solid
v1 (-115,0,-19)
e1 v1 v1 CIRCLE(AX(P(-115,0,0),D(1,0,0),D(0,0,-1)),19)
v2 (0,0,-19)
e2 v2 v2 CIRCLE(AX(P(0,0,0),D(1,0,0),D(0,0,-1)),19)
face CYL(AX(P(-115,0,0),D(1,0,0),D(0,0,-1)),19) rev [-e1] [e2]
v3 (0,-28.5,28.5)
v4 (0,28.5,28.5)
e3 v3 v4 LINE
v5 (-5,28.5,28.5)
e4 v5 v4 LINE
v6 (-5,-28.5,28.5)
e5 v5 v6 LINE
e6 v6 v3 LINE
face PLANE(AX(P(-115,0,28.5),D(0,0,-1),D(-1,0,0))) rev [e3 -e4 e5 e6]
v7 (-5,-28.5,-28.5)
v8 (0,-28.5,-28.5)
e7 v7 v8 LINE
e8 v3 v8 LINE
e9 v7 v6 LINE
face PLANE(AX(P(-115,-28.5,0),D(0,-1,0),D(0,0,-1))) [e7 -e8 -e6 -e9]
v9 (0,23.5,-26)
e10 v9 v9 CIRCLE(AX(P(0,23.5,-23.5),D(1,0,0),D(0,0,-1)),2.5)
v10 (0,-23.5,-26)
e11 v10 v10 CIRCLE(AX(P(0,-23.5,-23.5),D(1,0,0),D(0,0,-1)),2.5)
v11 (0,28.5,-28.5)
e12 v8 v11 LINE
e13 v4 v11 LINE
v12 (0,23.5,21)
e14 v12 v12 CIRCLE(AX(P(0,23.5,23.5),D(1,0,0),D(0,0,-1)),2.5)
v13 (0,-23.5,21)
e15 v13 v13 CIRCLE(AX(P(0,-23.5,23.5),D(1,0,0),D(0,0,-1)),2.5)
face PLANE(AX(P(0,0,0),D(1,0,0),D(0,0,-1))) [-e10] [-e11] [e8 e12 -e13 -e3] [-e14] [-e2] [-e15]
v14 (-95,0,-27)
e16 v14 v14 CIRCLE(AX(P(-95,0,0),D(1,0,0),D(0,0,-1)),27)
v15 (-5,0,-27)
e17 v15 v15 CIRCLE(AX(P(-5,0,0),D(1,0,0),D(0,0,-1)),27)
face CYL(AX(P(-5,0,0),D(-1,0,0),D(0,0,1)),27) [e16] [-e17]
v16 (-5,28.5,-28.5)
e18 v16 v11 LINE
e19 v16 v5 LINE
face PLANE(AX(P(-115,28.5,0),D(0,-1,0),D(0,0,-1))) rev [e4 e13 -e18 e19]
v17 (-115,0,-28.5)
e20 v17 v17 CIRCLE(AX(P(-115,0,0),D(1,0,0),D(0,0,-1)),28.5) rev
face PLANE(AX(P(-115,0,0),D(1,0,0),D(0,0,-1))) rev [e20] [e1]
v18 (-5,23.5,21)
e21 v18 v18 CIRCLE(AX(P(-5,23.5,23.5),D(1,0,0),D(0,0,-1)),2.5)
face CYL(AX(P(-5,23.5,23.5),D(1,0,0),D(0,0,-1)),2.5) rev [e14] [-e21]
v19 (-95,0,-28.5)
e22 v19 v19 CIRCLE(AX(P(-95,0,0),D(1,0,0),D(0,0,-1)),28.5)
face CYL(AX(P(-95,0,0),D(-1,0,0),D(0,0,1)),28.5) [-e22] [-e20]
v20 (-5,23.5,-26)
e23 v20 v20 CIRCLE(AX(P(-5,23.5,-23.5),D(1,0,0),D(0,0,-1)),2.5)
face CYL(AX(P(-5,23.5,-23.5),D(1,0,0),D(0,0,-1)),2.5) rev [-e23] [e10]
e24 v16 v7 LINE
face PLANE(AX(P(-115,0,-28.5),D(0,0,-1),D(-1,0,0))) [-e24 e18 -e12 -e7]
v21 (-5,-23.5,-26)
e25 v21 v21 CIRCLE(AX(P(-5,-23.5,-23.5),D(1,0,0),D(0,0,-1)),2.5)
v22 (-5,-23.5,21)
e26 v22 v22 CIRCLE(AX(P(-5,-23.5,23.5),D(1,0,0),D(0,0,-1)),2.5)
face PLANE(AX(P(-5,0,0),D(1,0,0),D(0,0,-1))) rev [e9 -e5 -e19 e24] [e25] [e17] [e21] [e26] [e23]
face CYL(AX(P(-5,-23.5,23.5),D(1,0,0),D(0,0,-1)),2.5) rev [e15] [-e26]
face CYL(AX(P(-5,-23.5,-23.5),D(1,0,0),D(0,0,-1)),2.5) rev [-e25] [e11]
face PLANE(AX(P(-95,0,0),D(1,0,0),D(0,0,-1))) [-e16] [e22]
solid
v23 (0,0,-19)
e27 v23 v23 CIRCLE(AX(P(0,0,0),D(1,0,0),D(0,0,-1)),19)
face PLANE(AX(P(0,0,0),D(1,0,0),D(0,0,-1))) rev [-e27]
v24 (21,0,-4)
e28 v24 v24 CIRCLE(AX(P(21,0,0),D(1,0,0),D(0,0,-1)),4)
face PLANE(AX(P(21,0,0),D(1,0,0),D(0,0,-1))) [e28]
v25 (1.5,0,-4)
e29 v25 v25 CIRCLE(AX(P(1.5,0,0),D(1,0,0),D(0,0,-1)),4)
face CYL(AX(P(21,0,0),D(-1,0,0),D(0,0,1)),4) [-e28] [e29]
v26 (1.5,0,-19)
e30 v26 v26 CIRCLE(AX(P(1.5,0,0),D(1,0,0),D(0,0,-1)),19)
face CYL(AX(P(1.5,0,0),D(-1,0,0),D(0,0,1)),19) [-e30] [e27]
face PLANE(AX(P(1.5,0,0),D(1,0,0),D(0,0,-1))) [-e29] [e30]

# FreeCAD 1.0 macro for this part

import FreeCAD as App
import Part
import Sketcher
from FreeCAD import Vector


def add_polygon(sketch, points):
    """Adds a closed chain of lines whose ends are joined by coincident constraints."""
    first, n = sketch.GeometryCount, len(points)
    for a, b in zip(points, points[1:] + points[:1]):
        sketch.addGeometry(Part.LineSegment(App.Vector(*a, 0), App.Vector(*b, 0)), False)
    for i in range(n):
        sketch.addConstraint(Sketcher.Constraint("Coincident", first + i, 2, first + (i + 1) % n, 1))

doc = App.newDocument("Part")
body = doc.addObject("PartDesign::Body", "Body")

sketch1 = body.newObject("Sketcher::SketchObject", "Sketch")
sketch1.AttachmentSupport = (doc.getObject("YZ_Plane"), [""])
sketch1.MapMode = "FlatFace"
sketch1.addGeometry(Part.Circle(Vector(0, 0, 0), Vector(0, 0, 1), 4), False)
sketch1.addConstraint([
    Sketcher.Constraint("Coincident", 0, 3, -1, 1),
    Sketcher.Constraint("Diameter", 0, 8.0),
])
pad1 = body.newObject("PartDesign::Pad", "Pad")
pad1.Profile = sketch1
pad1.Length = 21

sketch2 = body.newObject("Sketcher::SketchObject", "Sketch001")
sketch2.AttachmentSupport = (doc.getObject("YZ_Plane"), [""])
sketch2.MapMode = "FlatFace"
sketch2.addGeometry([
    Part.Circle(Vector(0, 0, 0), Vector(0, 0, 1), 19),
    Part.Circle(Vector(0, 0, 0), Vector(0, 0, 1), 4),
], False)
sketch2.addConstraint([
    Sketcher.Constraint("Coincident", 0, 3, -1, 1),
    Sketcher.Constraint("Coincident", 1, 3, -1, 1),
    Sketcher.Constraint("Diameter", 0, 38.0),
    Sketcher.Constraint("Diameter", 1, 8.0),
])
pad2 = body.newObject("PartDesign::Pad", "Pad001")
pad2.Profile = sketch2
pad2.Length = 1.5
body2 = doc.addObject("PartDesign::Body", "Body001")

sketch3 = body2.newObject("Sketcher::SketchObject", "Sketch002")
sketch3.AttachmentSupport = (doc.getObject("YZ_Plane001"), [""])
sketch3.MapMode = "FlatFace"
add_polygon(sketch3, [(28, 28), (-28, 28), (-28, -28), (28, -28)])
sketch3.addGeometry(Part.Circle(Vector(0, 0, 0), Vector(0, 0, 1), 19), False)
sketch3.addConstraint([
    Sketcher.Constraint("Horizontal", 0),
    Sketcher.Constraint("Vertical", 1),
    Sketcher.Constraint("Horizontal", 2),
    Sketcher.Constraint("Vertical", 3),
    Sketcher.Constraint("Coincident", 4, 3, -1, 1),
    Sketcher.Constraint("Symmetric", 0, 2, 2, 2, -1, 1),
    Sketcher.Constraint("Equal", 2, 1),
    Sketcher.Constraint("Diameter", 4, 38.0),
    Sketcher.Constraint("DistanceX", 0, 2, 0, 1, 57.0),
])
pad3 = body2.newObject("PartDesign::Pad", "Pad002")
pad3.Profile = sketch3
pad3.Length = 115
pad3.Reversed = True

sketch4 = body2.newObject("Sketcher::SketchObject", "Sketch003")
sketch4.AttachmentSupport = (doc.getObject("YZ_Plane001"), [""])
sketch4.MapMode = "FlatFace"
sketch4.AttachmentOffset = App.Placement(Vector(0, 0, -115), App.Rotation())
add_polygon(sketch4, [(45, 45), (-45, 45), (-45, -45), (45, -45)])
sketch4.addGeometry(Part.Circle(Vector(0, 0, 0), Vector(0, 0, 1), 28), False)
sketch4.addConstraint([
    Sketcher.Constraint("Horizontal", 0),
    Sketcher.Constraint("Vertical", 1),
    Sketcher.Constraint("Horizontal", 2),
    Sketcher.Constraint("Vertical", 3),
    Sketcher.Constraint("Coincident", 4, 3, -1, 1),
    Sketcher.Constraint("Symmetric", 0, 2, 2, 2, -1, 1),
    Sketcher.Constraint("Equal", 2, 1),
    Sketcher.Constraint("Diameter", 4, 57.0),
    Sketcher.Constraint("DistanceX", 0, 2, 0, 1, 90.618),
])
pocket1 = body2.newObject("PartDesign::Pocket", "Pocket")
pocket1.Profile = sketch4
pocket1.Length = 20
pocket1.Reversed = True

sketch5 = body2.newObject("Sketcher::SketchObject", "Sketch004")
sketch5.AttachmentSupport = (doc.getObject("YZ_Plane001"), [""])
sketch5.MapMode = "FlatFace"
sketch5.AttachmentOffset = App.Placement(Vector(0, 0, -95), App.Rotation())
add_polygon(sketch5, [(45, 45), (-45, 45), (-45, -45), (45, -45)])
sketch5.addGeometry(Part.Circle(Vector(0, 0, 0), Vector(0, 0, 1), 27), False)
sketch5.addConstraint([
    Sketcher.Constraint("Horizontal", 0),
    Sketcher.Constraint("Vertical", 1),
    Sketcher.Constraint("Horizontal", 2),
    Sketcher.Constraint("Vertical", 3),
    Sketcher.Constraint("Coincident", 4, 3, -1, 1),
    Sketcher.Constraint("Symmetric", 0, 2, 2, 2, -1, 1),
    Sketcher.Constraint("Equal", 2, 1),
    Sketcher.Constraint("Diameter", 4, 54.0),
    Sketcher.Constraint("DistanceX", 0, 2, 0, 1, 90.618),
])
pocket2 = body2.newObject("PartDesign::Pocket", "Pocket001")
pocket2.Profile = sketch5
pocket2.Length = 90
pocket2.Reversed = True

sketch6 = body2.newObject("Sketcher::SketchObject", "Sketch005")
sketch6.AttachmentSupport = (doc.getObject("YZ_Plane001"), [""])
sketch6.MapMode = "FlatFace"
sketch6.addGeometry([
    Part.Circle(Vector(23.5, 23.5, 0), Vector(0, 0, 1), 2.5),
    Part.Circle(Vector(23.5, -23.5, 0), Vector(0, 0, 1), 2.5),
    Part.Circle(Vector(-23.5, -23.5, 0), Vector(0, 0, 1), 2.5),
    Part.Circle(Vector(-23.5, 23.5, 0), Vector(0, 0, 1), 2.5),
], False)
sketch6.addConstraint([
    Sketcher.Constraint("Equal", 0, 1),
    Sketcher.Constraint("Equal", 1, 2),
    Sketcher.Constraint("Equal", 2, 3),
    Sketcher.Constraint("Symmetric", 0, 3, 2, 3, -1, 1),
    Sketcher.Constraint("Symmetric", 1, 3, 3, 3, -1, 1),
    Sketcher.Constraint("Symmetric", 1, 3, 2, 3, -2),
    Sketcher.Constraint("Diameter", 0, 5.0),
    Sketcher.Constraint("DistanceY", 1, 3, 0, 3, 47.0),
    Sketcher.Constraint("DistanceX", 2, 3, 1, 3, 47.0),
])
pocket3 = body2.newObject("PartDesign::Pocket", "Pocket002")
pocket3.Profile = sketch6
pocket3.Length = 5

doc.recompute()
